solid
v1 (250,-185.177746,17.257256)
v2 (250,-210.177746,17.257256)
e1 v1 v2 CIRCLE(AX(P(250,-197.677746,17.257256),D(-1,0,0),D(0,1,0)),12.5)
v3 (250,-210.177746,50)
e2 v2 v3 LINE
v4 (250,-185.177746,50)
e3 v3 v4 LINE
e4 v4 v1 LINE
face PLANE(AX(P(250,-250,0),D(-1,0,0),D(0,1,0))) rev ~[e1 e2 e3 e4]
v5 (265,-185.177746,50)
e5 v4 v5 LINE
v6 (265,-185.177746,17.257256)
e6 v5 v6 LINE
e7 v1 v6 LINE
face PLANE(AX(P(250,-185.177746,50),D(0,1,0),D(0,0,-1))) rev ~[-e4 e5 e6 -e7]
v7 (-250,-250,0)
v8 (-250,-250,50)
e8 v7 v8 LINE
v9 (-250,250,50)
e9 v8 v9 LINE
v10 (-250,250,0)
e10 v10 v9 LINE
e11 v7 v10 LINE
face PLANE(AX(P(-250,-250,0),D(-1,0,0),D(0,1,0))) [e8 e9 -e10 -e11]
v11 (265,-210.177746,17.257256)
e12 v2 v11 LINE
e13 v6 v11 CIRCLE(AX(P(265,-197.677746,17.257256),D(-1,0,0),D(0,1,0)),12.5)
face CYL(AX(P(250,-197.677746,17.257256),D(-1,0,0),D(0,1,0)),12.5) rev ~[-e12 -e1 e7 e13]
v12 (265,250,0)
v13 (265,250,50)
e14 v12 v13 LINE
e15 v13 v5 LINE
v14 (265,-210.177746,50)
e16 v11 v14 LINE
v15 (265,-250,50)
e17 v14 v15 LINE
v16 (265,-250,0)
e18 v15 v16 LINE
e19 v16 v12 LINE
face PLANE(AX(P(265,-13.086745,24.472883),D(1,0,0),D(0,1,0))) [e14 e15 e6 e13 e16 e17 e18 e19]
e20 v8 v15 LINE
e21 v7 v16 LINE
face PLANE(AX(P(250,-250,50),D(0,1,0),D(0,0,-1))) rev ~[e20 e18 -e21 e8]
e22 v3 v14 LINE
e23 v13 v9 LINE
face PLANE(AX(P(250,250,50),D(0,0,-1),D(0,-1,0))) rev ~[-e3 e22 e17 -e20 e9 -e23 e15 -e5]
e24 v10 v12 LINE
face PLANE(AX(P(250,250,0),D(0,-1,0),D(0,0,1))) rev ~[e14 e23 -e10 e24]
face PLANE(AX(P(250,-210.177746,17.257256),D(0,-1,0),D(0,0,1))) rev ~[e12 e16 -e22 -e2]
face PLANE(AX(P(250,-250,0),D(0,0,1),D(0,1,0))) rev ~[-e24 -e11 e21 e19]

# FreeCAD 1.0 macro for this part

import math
import FreeCAD as App
import Part
import Sketcher


def add_polygon(sketch, points):
    """Adds a closed chain of lines whose ends are joined by coincident constraints."""
    first, n = sketch.GeometryCount, len(points)
    for a, b in zip(points, points[1:] + points[:1]):
        sketch.addGeometry(Part.LineSegment(App.Vector(*a, 0), App.Vector(*b, 0)), False)
    for i in range(n):
        sketch.addConstraint(Sketcher.Constraint("Coincident", first + i, 2, first + (i + 1) % n, 1))

doc = App.newDocument("Part")
body = doc.addObject("PartDesign::Body", "Body")

# Sketch on XY plane
sketch1 = body.newObject("Sketcher::SketchObject", "Sketch")
sketch1.AttachmentSupport = (doc.getObject("XY_Plane"), [""])
sketch1.MapMode = "FlatFace"
add_polygon(sketch1, [(-250, 250), (-250, -250), (250, -250), (250, 250)])  # lines 0-3
sketch1.addConstraint(Sketcher.Constraint("Vertical", 0))
sketch1.addConstraint(Sketcher.Constraint("Horizontal", 1))
sketch1.addConstraint(Sketcher.Constraint("Vertical", 2))
sketch1.addConstraint(Sketcher.Constraint("Horizontal", 3))
sketch1.addConstraint(Sketcher.Constraint("Symmetric", 0, 2, 2, 2, -1, 1))
sketch1.addConstraint(Sketcher.Constraint("Equal", 3, 0))
sketch1.addConstraint(Sketcher.Constraint("DistanceX", 1, 1, 1, 2, 500.0))
pad1 = body.newObject("PartDesign::Pad", "Pad")
pad1.Profile = sketch1
pad1.Length = 50

# Sketch on YZ plane
sketch2 = body.newObject("Sketcher::SketchObject", "Sketch001")
sketch2.AttachmentSupport = (doc.getObject("YZ_Plane"), [""])
sketch2.MapMode = "FlatFace"
sketch2.AttachmentOffset = App.Placement(App.Vector(0, 0, 250), App.Rotation())
sketch2.addGeometry(Part.ArcOfCircle(Part.Circle(App.Vector(-198, 17, 0), App.Vector(0, 0, 1), 12), math.radians(180), math.radians(360)), False)
sketch2.addGeometry(Part.LineSegment(App.Vector(-210, 17, 0), App.Vector(-210, 50, 0)), False)
sketch2.addGeometry(Part.LineSegment(App.Vector(-210, 50, 0), App.Vector(-250, 50, 0)), False)
sketch2.addGeometry(Part.LineSegment(App.Vector(-250, 50, 0), App.Vector(-250, 0, 0)), False)
sketch2.addGeometry(Part.LineSegment(App.Vector(-250, 0, 0), App.Vector(250, 0, 0)), False)
sketch2.addGeometry(Part.LineSegment(App.Vector(250, 0, 0), App.Vector(250, 50, 0)), False)
sketch2.addGeometry(Part.LineSegment(App.Vector(250, 50, 0), App.Vector(-185, 50, 0)), False)
sketch2.addGeometry(Part.LineSegment(App.Vector(-185, 50, 0), App.Vector(-185, 17, 0)), False)
sketch2.addConstraint(Sketcher.Constraint("Tangent", 0, 1, 1, 1))
sketch2.addConstraint(Sketcher.Constraint("Coincident", 1, 2, 2, 1))
sketch2.addConstraint(Sketcher.Constraint("Coincident", 2, 2, 3, 1))
sketch2.addConstraint(Sketcher.Constraint("Coincident", 3, 2, 4, 1))
sketch2.addConstraint(Sketcher.Constraint("Coincident", 4, 2, 5, 1))
sketch2.addConstraint(Sketcher.Constraint("Coincident", 5, 2, 6, 1))
sketch2.addConstraint(Sketcher.Constraint("Coincident", 6, 2, 7, 1))
sketch2.addConstraint(Sketcher.Constraint("Tangent", 7, 2, 0, 2))
sketch2.addConstraint(Sketcher.Constraint("Vertical", 1))
sketch2.addConstraint(Sketcher.Constraint("Horizontal", 2))
sketch2.addConstraint(Sketcher.Constraint("Vertical", 3))
sketch2.addConstraint(Sketcher.Constraint("Horizontal", 4))
sketch2.addConstraint(Sketcher.Constraint("Vertical", 5))
sketch2.addConstraint(Sketcher.Constraint("Horizontal", 6))
sketch2.addConstraint(Sketcher.Constraint("Vertical", 7))
sketch2.addConstraint(Sketcher.Constraint("Symmetric", 3, 2, 4, 2, -1, 1))
sketch2.addConstraint(Sketcher.Constraint("Horizontal", 2, 2, 5, 2))
sketch2.addConstraint(Sketcher.Constraint("Radius", 0, 12.5))
sketch2.addConstraint(Sketcher.Constraint("DistanceX", 4, 1, 4, 2, 500.0))
sketch2.addConstraint(Sketcher.Constraint("DistanceY", 3, 2, 3, 1, 50.0))
sketch2.addConstraint(Sketcher.Constraint("DistanceX", 2, 2, 2, 1, 39.822254))
sketch2.addConstraint(Sketcher.Constraint("DistanceY", 1, 1, 1, 2, 32.742744))
pad2 = body.newObject("PartDesign::Pad", "Pad001")
pad2.Profile = sketch2
pad2.Length = 15

doc.recompute()
